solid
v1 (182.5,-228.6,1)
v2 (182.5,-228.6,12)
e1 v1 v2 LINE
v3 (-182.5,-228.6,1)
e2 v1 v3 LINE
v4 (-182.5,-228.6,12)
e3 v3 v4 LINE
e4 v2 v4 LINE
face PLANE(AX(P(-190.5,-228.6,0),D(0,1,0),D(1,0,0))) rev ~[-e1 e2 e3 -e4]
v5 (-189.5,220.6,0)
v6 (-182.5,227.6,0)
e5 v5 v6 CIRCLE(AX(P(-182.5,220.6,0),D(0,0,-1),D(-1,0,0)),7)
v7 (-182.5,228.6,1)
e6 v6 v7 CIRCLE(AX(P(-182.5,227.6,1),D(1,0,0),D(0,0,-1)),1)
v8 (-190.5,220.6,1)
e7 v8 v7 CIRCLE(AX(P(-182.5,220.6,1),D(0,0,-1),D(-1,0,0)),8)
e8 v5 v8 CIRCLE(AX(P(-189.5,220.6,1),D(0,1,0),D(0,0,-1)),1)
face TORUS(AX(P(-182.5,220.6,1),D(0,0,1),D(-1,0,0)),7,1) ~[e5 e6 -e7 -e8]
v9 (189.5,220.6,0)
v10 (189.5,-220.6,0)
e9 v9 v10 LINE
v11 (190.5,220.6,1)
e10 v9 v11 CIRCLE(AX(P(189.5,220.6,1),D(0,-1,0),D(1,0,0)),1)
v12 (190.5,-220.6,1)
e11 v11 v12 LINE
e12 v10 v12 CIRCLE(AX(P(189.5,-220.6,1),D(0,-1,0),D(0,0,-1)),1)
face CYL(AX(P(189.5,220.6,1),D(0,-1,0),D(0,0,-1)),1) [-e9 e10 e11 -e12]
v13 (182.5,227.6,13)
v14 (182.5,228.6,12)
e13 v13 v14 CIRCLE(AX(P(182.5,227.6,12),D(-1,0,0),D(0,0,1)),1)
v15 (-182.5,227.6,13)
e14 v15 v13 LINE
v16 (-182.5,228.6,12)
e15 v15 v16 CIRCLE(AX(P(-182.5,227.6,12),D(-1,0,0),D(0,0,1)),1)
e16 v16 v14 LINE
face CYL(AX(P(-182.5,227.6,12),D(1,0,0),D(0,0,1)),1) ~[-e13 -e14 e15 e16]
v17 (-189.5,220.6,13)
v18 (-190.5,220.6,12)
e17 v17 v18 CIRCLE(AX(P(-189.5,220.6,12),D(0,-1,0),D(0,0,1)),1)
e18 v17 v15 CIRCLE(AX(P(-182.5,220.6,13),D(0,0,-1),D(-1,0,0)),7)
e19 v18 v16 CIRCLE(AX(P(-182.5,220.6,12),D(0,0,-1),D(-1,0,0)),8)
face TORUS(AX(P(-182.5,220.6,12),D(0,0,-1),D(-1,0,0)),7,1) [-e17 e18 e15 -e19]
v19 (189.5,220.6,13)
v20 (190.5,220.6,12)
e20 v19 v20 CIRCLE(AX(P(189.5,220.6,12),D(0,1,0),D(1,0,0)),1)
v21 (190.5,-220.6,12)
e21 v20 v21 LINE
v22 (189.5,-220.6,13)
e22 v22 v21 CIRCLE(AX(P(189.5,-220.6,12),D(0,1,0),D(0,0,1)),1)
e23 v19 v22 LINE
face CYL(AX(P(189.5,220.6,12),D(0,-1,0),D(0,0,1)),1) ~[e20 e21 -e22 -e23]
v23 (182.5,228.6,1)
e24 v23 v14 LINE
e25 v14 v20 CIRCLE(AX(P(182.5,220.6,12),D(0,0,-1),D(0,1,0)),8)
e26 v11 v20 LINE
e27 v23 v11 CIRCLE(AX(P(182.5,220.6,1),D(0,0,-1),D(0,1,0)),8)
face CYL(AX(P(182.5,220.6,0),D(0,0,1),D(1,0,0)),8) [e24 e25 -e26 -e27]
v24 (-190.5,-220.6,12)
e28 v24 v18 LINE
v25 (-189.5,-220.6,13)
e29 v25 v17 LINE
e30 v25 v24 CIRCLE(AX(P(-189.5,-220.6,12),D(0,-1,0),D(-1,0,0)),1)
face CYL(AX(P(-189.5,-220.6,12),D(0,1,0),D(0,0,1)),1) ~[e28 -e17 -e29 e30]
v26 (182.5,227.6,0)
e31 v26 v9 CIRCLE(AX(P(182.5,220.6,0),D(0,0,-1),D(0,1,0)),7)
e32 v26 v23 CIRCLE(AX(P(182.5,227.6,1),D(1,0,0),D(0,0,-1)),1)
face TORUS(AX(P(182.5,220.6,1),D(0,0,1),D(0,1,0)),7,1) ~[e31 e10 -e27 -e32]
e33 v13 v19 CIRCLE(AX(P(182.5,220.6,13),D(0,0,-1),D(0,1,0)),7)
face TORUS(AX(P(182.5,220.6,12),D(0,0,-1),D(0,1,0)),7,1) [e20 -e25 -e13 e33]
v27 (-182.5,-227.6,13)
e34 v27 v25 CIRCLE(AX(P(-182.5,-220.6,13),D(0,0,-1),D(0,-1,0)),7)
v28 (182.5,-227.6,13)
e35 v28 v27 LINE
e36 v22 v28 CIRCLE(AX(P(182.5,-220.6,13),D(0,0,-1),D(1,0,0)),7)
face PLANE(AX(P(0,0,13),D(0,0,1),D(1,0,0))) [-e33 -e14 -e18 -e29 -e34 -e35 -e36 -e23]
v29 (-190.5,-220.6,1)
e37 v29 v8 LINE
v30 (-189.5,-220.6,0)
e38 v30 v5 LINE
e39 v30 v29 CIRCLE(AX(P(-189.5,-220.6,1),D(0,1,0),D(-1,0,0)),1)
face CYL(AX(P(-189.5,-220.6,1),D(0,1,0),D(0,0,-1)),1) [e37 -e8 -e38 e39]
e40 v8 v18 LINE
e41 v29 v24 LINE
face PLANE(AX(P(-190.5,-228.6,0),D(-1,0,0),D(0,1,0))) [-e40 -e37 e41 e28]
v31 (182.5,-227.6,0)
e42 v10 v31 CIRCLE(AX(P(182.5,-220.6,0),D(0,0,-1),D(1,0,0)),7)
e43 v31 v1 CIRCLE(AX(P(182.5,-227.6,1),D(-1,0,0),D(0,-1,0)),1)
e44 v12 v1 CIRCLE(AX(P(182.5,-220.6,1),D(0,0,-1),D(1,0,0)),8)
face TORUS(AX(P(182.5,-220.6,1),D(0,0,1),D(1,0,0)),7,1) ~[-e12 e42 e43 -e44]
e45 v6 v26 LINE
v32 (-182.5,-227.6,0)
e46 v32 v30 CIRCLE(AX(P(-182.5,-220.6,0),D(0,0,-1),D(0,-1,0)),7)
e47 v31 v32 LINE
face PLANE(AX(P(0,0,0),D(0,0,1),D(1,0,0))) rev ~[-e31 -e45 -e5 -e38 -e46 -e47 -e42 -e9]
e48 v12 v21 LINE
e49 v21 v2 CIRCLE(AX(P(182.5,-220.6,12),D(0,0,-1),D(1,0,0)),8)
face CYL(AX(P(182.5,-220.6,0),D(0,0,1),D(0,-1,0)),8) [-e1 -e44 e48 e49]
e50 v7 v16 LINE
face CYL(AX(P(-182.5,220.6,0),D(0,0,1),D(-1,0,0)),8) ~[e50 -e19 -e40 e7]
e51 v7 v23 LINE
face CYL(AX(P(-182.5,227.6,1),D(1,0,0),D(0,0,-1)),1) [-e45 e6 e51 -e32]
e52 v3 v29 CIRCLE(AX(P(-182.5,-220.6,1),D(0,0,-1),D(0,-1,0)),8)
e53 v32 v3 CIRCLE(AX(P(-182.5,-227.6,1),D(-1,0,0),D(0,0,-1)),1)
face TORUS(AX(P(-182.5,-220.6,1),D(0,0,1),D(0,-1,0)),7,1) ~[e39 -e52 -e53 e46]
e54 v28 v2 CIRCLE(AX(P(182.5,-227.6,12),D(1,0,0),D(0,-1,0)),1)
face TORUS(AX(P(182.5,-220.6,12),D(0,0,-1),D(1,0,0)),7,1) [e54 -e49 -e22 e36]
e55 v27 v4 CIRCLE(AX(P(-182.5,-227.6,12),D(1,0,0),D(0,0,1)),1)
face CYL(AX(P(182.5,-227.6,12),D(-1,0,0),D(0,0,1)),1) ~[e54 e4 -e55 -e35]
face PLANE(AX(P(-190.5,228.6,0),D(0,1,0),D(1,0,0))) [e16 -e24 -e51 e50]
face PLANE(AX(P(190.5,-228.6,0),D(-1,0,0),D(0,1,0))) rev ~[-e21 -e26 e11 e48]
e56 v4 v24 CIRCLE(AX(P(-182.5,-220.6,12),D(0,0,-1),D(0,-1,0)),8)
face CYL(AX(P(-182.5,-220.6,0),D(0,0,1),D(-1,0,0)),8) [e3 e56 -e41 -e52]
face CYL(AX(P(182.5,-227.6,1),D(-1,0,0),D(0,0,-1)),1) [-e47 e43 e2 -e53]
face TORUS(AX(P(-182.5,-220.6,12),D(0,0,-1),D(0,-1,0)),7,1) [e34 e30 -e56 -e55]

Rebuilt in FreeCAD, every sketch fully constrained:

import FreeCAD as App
import Part
import Sketcher
Q = App.Units.Quantity


def edges_at(feature, points):
    """Names of the edges that pass closest to the given points."""
    edges = feature.Shape.Edges
    near = lambda p: min(range(len(edges)), key=lambda i: edges[i].distToShape(Part.Vertex(*p))[0])
    return sorted({f"Edge{near(p) + 1}" for p in points})

doc = App.newDocument("Part")
body = doc.addObject("PartDesign::Body", "Body")

sketch1 = body.newObject("Sketcher::SketchObject", "Sketch")
sketch1.AttachmentSupport = (doc.getObject("XY_Plane"), [""])
sketch1.MapMode = "FlatFace"
sketch1.addGeometry(Part.LineSegment(App.Vector(-190, 229, 0), App.Vector(-190, -229, 0)), False)
sketch1.addGeometry(Part.LineSegment(App.Vector(-190, -229, 0), App.Vector(190, -229, 0)), False)
sketch1.addGeometry(Part.LineSegment(App.Vector(190, -229, 0), App.Vector(190, 229, 0)), False)
sketch1.addGeometry(Part.LineSegment(App.Vector(190, 229, 0), App.Vector(-190, 229, 0)), False)
sketch1.addConstraint(Sketcher.Constraint("Coincident", 0, 2, 1, 1))
sketch1.addConstraint(Sketcher.Constraint("Coincident", 1, 2, 2, 1))
sketch1.addConstraint(Sketcher.Constraint("Coincident", 2, 2, 3, 1))
sketch1.addConstraint(Sketcher.Constraint("Coincident", 3, 2, 0, 1))
sketch1.addConstraint(Sketcher.Constraint("Vertical", 0))
sketch1.addConstraint(Sketcher.Constraint("Horizontal", 1))
sketch1.addConstraint(Sketcher.Constraint("Vertical", 2))
sketch1.addConstraint(Sketcher.Constraint("Horizontal", 3))
sketch1.addConstraint(Sketcher.Constraint("Symmetric", 0, 2, 2, 2, -1, 1))
sketch1.addConstraint(Sketcher.Constraint("DistanceX", 1, 1, 1, 2, Q("381 mm")))
sketch1.addConstraint(Sketcher.Constraint("DistanceY", 0, 2, 0, 1, Q("457.2 mm")))
pad1 = body.newObject("PartDesign::Pad", "Pad")
pad1.Profile = sketch1
pad1.Length = 13
doc.recompute()

fillet = body.newObject("PartDesign::Fillet", "Fillet")
fillet.Base = (pad1, edges_at(pad1, [
    (190.5, -228.6, 6.5),
    (-190.5, -228.6, 6.5),
    (-190.5, 228.6, 6.5),
    (190.5, 228.6, 6.5),
]))
fillet.Radius = 8
doc.recompute()

fillet2 = body.newObject("PartDesign::Fillet", "Fillet001")
fillet2.Base = (fillet, edges_at(fillet, [
    (0, 228.6, 0),
    (0, 228.6, 13),
    (190.5, 0, 0),
    (0, -228.6, 0),
    (-190.5, 0, 0),
    (-188.157, -226.257, 0),
    (188.157, -226.257, 0),
    (-188.157, 226.257, 0),
    (188.157, 226.257, 0),
    (190.5, 0, 13),
    (-190.5, 0, 13),
    (0, -228.6, 13),
    (-188.157, -226.257, 13),
    (188.157, -226.257, 13),
    (-188.157, 226.257, 13),
    (188.157, 226.257, 13),
]))
fillet2.Radius = 1

doc.recompute()
